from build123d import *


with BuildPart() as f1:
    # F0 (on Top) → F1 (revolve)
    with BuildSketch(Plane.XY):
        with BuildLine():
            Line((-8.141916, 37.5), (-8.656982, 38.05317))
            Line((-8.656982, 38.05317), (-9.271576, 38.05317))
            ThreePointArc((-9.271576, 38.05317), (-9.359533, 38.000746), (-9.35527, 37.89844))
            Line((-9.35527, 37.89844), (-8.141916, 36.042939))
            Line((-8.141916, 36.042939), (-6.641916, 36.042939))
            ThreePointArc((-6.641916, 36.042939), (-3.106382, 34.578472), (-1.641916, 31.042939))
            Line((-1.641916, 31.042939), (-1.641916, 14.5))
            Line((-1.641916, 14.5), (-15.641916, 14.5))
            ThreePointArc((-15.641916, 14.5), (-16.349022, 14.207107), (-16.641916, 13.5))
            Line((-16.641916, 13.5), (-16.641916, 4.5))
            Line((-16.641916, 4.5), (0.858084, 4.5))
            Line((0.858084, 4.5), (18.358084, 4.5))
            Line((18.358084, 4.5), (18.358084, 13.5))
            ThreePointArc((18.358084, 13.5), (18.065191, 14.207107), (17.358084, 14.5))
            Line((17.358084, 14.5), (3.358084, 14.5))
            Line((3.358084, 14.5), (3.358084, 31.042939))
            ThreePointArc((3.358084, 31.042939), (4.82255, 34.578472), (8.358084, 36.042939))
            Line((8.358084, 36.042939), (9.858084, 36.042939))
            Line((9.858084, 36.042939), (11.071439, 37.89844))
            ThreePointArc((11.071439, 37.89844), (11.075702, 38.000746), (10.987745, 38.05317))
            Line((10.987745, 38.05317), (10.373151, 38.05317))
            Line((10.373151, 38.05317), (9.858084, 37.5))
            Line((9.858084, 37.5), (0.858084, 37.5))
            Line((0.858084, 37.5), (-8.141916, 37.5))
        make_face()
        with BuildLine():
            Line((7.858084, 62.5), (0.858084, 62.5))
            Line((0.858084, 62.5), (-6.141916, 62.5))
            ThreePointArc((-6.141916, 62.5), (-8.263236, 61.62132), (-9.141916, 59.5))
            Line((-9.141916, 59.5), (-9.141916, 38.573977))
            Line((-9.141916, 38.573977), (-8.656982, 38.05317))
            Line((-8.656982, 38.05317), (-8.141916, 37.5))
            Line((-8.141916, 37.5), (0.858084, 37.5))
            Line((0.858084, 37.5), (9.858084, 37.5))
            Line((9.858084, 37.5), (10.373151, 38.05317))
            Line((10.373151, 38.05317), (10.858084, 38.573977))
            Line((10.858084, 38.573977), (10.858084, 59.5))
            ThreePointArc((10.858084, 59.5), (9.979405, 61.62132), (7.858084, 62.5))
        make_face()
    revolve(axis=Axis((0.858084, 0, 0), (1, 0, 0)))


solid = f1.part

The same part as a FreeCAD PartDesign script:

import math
import FreeCAD as App
import Part
import Sketcher

V = App.Vector
Q = App.Units.Quantity

doc = App.newDocument("Part")
params = doc.addObject("Spreadsheet::Sheet", "Params")
for row, (alias, value) in enumerate([
    ("sketch1_radius", "5.000001 mm"),
    ("sketch1_radius2", "1.000001 mm"),
    ("sketch1_radius3", "2.999999 mm"),
    ("sketch1_radius4", "0.100001 mm"),
    ("sketch1_width", "14 mm"),
    ("revolution_angle", "360 deg"),
], start=1):
    params.set(f"A{row}", alias)
    params.set(f"B{row}", "=" + value)
    params.setAlias(f"B{row}", alias)

body = doc.addObject("PartDesign::Body", "Body")

# Sketch on XY plane
sketch1 = doc.addObject("Sketcher::SketchObject", "Sketch")
body.addObject(sketch1)
sketch1.AttachmentSupport = (doc.XY_Plane, [""])
sketch1.MapMode = "FlatFace"
sketch1.addGeometry(Part.LineSegment(V(-8.66, 38.05, 0), V(-9.27, 38.05, 0)), False)
sketch1.addGeometry(Part.ArcOfCircle(Part.Circle(V(-9.27, 37.95, 0), V(0, 0, 1), 0.1), math.radians(90), math.radians(213)), False)
sketch1.addGeometry(Part.LineSegment(V(-9.36, 37.9, 0), V(-8.14, 36.04, 0)), False)
sketch1.addGeometry(Part.LineSegment(V(-8.14, 36.04, 0), V(-6.64, 36.04, 0)), False)
sketch1.addGeometry(Part.ArcOfCircle(Part.Circle(V(-6.64, 31.04, 0), V(0, 0, 1), 5), math.radians(0), math.radians(90)), False)
sketch1.addGeometry(Part.LineSegment(V(-1.64, 31.04, 0), V(-1.64, 14.5, 0)), False)
sketch1.addGeometry(Part.LineSegment(V(-1.64, 14.5, 0), V(-15.64, 14.5, 0)), False)
sketch1.addGeometry(Part.ArcOfCircle(Part.Circle(V(-15.64, 13.5, 0), V(0, 0, 1), 1), math.radians(90), math.radians(180)), False)
sketch1.addGeometry(Part.LineSegment(V(-16.64, 13.5, 0), V(-16.64, 4.5, 0)), False)
sketch1.addGeometry(Part.LineSegment(V(-16.64, 4.5, 0), V(18.36, 4.5, 0)), False)
sketch1.addGeometry(Part.LineSegment(V(18.36, 4.5, 0), V(18.36, 13.5, 0)), False)
sketch1.addGeometry(Part.ArcOfCircle(Part.Circle(V(17.36, 13.5, 0), V(0, 0, 1), 1), math.radians(0), math.radians(90)), False)
sketch1.addGeometry(Part.LineSegment(V(17.36, 14.5, 0), V(3.36, 14.5, 0)), False)
sketch1.addGeometry(Part.LineSegment(V(3.36, 14.5, 0), V(3.36, 31.04, 0)), False)
sketch1.addGeometry(Part.ArcOfCircle(Part.Circle(V(8.36, 31.04, 0), V(0, 0, 1), 5), math.radians(90), math.radians(180)), False)
sketch1.addGeometry(Part.LineSegment(V(8.36, 36.04, 0), V(9.86, 36.04, 0)), False)
sketch1.addGeometry(Part.LineSegment(V(9.86, 36.04, 0), V(11.07, 37.9, 0)), False)
sketch1.addGeometry(Part.ArcOfCircle(Part.Circle(V(10.99, 37.95, 0), V(0, 0, 1), 0.1), math.radians(-33), math.radians(90)), False)
sketch1.addGeometry(Part.LineSegment(V(10.99, 38.05, 0), V(10.37, 38.05, 0)), False)
sketch1.addGeometry(Part.LineSegment(V(10.37, 38.05, 0), V(10.86, 38.57, 0)), False)
sketch1.addGeometry(Part.LineSegment(V(10.86, 38.57, 0), V(10.86, 59.5, 0)), False)
sketch1.addGeometry(Part.ArcOfCircle(Part.Circle(V(7.86, 59.5, 0), V(0, 0, 1), 3), math.radians(0), math.radians(90)), False)
sketch1.addGeometry(Part.LineSegment(V(7.86, 62.5, 0), V(-6.14, 62.5, 0)), False)
sketch1.addGeometry(Part.ArcOfCircle(Part.Circle(V(-6.14, 59.5, 0), V(0, 0, 1), 3), math.radians(90), math.radians(180)), False)
sketch1.addGeometry(Part.LineSegment(V(-9.14, 59.5, 0), V(-9.14, 38.57, 0)), False)
sketch1.addGeometry(Part.LineSegment(V(-9.14, 38.57, 0), V(-8.66, 38.05, 0)), False)
sketch1.addConstraint(Sketcher.Constraint("Coincident", 0, 2, 1, 1))
sketch1.addConstraint(Sketcher.Constraint("Coincident", 1, 2, 2, 1))
sketch1.addConstraint(Sketcher.Constraint("Coincident", 2, 2, 3, 1))
sketch1.addConstraint(Sketcher.Constraint("Tangent", 3, 2, 4, 2))
sketch1.addConstraint(Sketcher.Constraint("Tangent", 4, 1, 5, 1))
sketch1.addConstraint(Sketcher.Constraint("Coincident", 5, 2, 6, 1))
sketch1.addConstraint(Sketcher.Constraint("Tangent", 6, 2, 7, 1))
sketch1.addConstraint(Sketcher.Constraint("Tangent", 7, 2, 8, 1))
sketch1.addConstraint(Sketcher.Constraint("Coincident", 8, 2, 9, 1))
sketch1.addConstraint(Sketcher.Constraint("Coincident", 9, 2, 10, 1))
sketch1.addConstraint(Sketcher.Constraint("Tangent", 10, 2, 11, 1))
sketch1.addConstraint(Sketcher.Constraint("Tangent", 11, 2, 12, 1))
sketch1.addConstraint(Sketcher.Constraint("Coincident", 12, 2, 13, 1))
sketch1.addConstraint(Sketcher.Constraint("Tangent", 13, 2, 14, 2))
sketch1.addConstraint(Sketcher.Constraint("Tangent", 14, 1, 15, 1))
sketch1.addConstraint(Sketcher.Constraint("Coincident", 15, 2, 16, 1))
sketch1.addConstraint(Sketcher.Constraint("Coincident", 16, 2, 17, 1))
sketch1.addConstraint(Sketcher.Constraint("Coincident", 17, 2, 18, 1))
sketch1.addConstraint(Sketcher.Constraint("Coincident", 18, 2, 19, 1))
sketch1.addConstraint(Sketcher.Constraint("Coincident", 19, 2, 20, 1))
sketch1.addConstraint(Sketcher.Constraint("Tangent", 20, 2, 21, 1))
sketch1.addConstraint(Sketcher.Constraint("Tangent", 21, 2, 22, 1))
sketch1.addConstraint(Sketcher.Constraint("Tangent", 22, 2, 23, 1))
sketch1.addConstraint(Sketcher.Constraint("Tangent", 23, 2, 24, 1))
sketch1.addConstraint(Sketcher.Constraint("Coincident", 24, 2, 25, 1))
sketch1.addConstraint(Sketcher.Constraint("Coincident", 25, 2, 0, 1))
sketch1.addConstraint(Sketcher.Constraint("Horizontal", 0))
sketch1.addConstraint(Sketcher.Constraint("Horizontal", 3))
sketch1.addConstraint(Sketcher.Constraint("Vertical", 5))
sketch1.addConstraint(Sketcher.Constraint("Horizontal", 6))
sketch1.addConstraint(Sketcher.Constraint("Vertical", 8))
sketch1.addConstraint(Sketcher.Constraint("Horizontal", 9))
sketch1.addConstraint(Sketcher.Constraint("Vertical", 10))
sketch1.addConstraint(Sketcher.Constraint("Horizontal", 12))
sketch1.addConstraint(Sketcher.Constraint("Vertical", 13))
sketch1.addConstraint(Sketcher.Constraint("Horizontal", 15))
sketch1.addConstraint(Sketcher.Constraint("Horizontal", 18))
sketch1.addConstraint(Sketcher.Constraint("Vertical", 20))
sketch1.addConstraint(Sketcher.Constraint("Horizontal", 22))
sketch1.addConstraint(Sketcher.Constraint("Vertical", 24))
sketch1.addConstraint(Sketcher.Constraint("Equal", 7, 11))
sketch1.addConstraint(Sketcher.Constraint("Equal", 4, 14))
sketch1.addConstraint(Sketcher.Constraint("Equal", 1, 17))
sketch1.addConstraint(Sketcher.Constraint("Equal", 21, 23))
sketch1.addConstraint(Sketcher.Constraint("Horizontal", 7, 3, 11, 3))
sketch1.addConstraint(Sketcher.Constraint("Horizontal", 4, 3, 14, 3))
sketch1.addConstraint(Sketcher.Constraint("Horizontal", 1, 3, 17, 3))
sketch1.addConstraint(Sketcher.Constraint("Horizontal", 1, 2, 16, 2))
sketch1.addConstraint(Sketcher.Constraint("Horizontal", 19, 2, 24, 2))
sketch1.addConstraint(Sketcher.Constraint("Vertical", 1, 3, 0, 2))
sketch1.addConstraint(Sketcher.Constraint("Equal", 6, 12))
sketch1.addConstraint(Sketcher.Constraint("Equal", 3, 15))
sketch1.addConstraint(Sketcher.Constraint("Equal", 0, 18))
sketch1.addConstraint(Sketcher.Constraint("Equal", 12, 22))
sketch1.addConstraint(Sketcher.Constraint("Equal", 2, 16))
sketch1.addConstraint(Sketcher.Constraint("Equal", 19, 25))
sketch1.addConstraint(Sketcher.Constraint("Radius", 4, Q("5.000001 mm")))
sketch1.addConstraint(Sketcher.Constraint("Radius", 7, Q("1.000001 mm")))
sketch1.addConstraint(Sketcher.Constraint("Radius", 21, Q("2.999999 mm")))
sketch1.addConstraint(Sketcher.Constraint("Radius", 1, Q("0.100001 mm")))
sketch1.addConstraint(Sketcher.Constraint("DistanceX", 6, 2, 6, 1, Q("14 mm")))
sketch1.addConstraint(Sketcher.Constraint("DistanceX", 9, 1, 9, 2, Q("35 mm")))
sketch1.addConstraint(Sketcher.Constraint("DistanceY", 8, 2, 8, 1, Q("9 mm")))
sketch1.addConstraint(Sketcher.Constraint("DistanceX", 3, 1, 3, 2, Q("1.5 mm")))
sketch1.addConstraint(Sketcher.Constraint("DistanceY", 11, 3, 21, 3, Q("46 mm")))
sketch1.addConstraint(Sketcher.Constraint("DistanceX", 15, 2, 19, 2, Q("1 mm")))
sketch1.addConstraint(Sketcher.Constraint("DistanceY", -1, 1, 7, 3, Q("13.499999 mm")))
sketch1.addConstraint(Sketcher.Constraint("DistanceY", 5, 2, 5, 1, Q("16.542939 mm")))
sketch1.addConstraint(Sketcher.Constraint("DistanceY", 2, 2, 1, 2, Q("1.855501 mm")))
sketch1.addConstraint(Sketcher.Constraint("Distance", 25, Q("0.711619 mm")))
sketch1.addConstraint(Sketcher.Constraint("DistanceX", 0, 2, 0, 1, Q("0.614594 mm")))
sketch1.addConstraint(Sketcher.Constraint("DistanceY", 20, 1, 20, 2, Q("20.926023 mm")))
sketch1.addConstraint(Sketcher.Constraint("DistanceY", -1, 1, 1, 3, Q("37.953169 mm")))
sketch1.addConstraint(Sketcher.Constraint("DistanceX", 1, 2, -1, 1, Q("9.35527 mm")))
sketch1.setExpression("Constraints[56]", "Params.sketch1_radius")
sketch1.setExpression("Constraints[57]", "Params.sketch1_radius2")
sketch1.setExpression("Constraints[58]", "Params.sketch1_radius3")
sketch1.setExpression("Constraints[59]", "Params.sketch1_radius4")
sketch1.setExpression("Constraints[60]", "Params.sketch1_width")
revolution = doc.addObject("PartDesign::Revolution", "Revolution")
body.addObject(revolution)
revolution.Profile = sketch1
revolution.ReferenceAxis = (sketch1, ["H_Axis"])
revolution.setExpression("Angle", "Params.revolution_angle")

doc.recompute()
